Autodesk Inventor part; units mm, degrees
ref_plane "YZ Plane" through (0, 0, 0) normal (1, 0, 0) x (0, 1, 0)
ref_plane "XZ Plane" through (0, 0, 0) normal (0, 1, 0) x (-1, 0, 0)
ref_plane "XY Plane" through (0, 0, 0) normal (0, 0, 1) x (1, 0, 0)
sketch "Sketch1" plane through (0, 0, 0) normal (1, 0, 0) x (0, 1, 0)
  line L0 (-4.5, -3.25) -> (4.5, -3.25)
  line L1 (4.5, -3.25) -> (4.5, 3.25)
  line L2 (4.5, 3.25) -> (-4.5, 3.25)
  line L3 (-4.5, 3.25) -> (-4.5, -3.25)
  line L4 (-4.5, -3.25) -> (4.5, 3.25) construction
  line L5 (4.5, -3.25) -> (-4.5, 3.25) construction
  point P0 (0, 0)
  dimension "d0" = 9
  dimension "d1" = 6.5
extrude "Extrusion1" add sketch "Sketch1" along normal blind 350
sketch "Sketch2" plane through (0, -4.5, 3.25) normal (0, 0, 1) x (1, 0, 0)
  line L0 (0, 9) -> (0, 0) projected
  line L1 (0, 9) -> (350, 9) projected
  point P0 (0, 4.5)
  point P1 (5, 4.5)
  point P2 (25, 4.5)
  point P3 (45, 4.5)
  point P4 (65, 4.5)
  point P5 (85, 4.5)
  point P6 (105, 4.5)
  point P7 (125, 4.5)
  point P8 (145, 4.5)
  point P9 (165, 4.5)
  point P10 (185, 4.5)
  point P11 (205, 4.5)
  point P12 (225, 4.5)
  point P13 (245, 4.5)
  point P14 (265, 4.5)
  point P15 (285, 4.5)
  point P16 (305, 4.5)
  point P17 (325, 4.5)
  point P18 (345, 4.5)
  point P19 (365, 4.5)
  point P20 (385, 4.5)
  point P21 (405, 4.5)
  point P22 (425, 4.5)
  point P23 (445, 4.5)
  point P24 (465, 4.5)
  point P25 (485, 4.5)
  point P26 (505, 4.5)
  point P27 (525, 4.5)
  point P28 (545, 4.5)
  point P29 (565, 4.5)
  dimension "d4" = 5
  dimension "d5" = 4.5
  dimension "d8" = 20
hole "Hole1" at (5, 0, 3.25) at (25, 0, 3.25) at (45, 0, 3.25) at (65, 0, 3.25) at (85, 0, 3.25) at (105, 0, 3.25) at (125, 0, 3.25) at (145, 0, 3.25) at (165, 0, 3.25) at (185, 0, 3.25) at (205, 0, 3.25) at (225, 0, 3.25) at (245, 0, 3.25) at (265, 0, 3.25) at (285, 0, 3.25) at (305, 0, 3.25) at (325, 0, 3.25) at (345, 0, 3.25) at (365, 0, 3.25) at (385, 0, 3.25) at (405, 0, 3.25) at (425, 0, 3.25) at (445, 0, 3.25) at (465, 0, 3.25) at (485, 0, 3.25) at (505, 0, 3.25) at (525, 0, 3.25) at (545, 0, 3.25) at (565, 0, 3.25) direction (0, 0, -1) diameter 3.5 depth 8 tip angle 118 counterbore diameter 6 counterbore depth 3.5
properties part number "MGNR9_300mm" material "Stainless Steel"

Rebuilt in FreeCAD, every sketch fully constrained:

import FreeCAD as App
import Part
import Sketcher

doc = App.newDocument("Part")
body = doc.addObject("PartDesign::Body", "Body")

sketch1 = doc.addObject("Sketcher::SketchObject", "Sketch")
body.addObject(sketch1)
sketch1.AttachmentSupport = (doc.YZ_Plane, [""])
sketch1.MapMode = "FlatFace"
sketch1.addGeometry([
    Part.LineSegment(App.Vector(-4.5, 3.25, 0), App.Vector(-4.5, -3.25, 0)),
    Part.LineSegment(App.Vector(-4.5, -3.25, 0), App.Vector(4.5, -3.25, 0)),
    Part.LineSegment(App.Vector(4.5, -3.25, 0), App.Vector(4.5, 3.25, 0)),
    Part.LineSegment(App.Vector(4.5, 3.25, 0), App.Vector(-4.5, 3.25, 0)),
], False)
sketch1.addConstraint([
    Sketcher.Constraint("Coincident", 0, 2, 1, 1),
    Sketcher.Constraint("Coincident", 1, 2, 2, 1),
    Sketcher.Constraint("Coincident", 2, 2, 3, 1),
    Sketcher.Constraint("Coincident", 3, 2, 0, 1),
    Sketcher.Constraint("Vertical", 0),
    Sketcher.Constraint("Horizontal", 1),
    Sketcher.Constraint("Vertical", 2),
    Sketcher.Constraint("Horizontal", 3),
    Sketcher.Constraint("Symmetric", 0, 2, 2, 2, -1, 1),
    Sketcher.Constraint("DistanceX", 1, 1, 1, 2, 9.0),
    Sketcher.Constraint("DistanceY", 0, 2, 0, 1, 6.5),
])
pad1 = doc.addObject("PartDesign::Pad", "Pad")
body.addObject(pad1)
pad1.Profile = sketch1
pad1.Length = 350

sketch2 = doc.addObject("Sketcher::SketchObject", "Sketch001")
body.addObject(sketch2)
sketch2.AttachmentSupport = (doc.XY_Plane, [""])
sketch2.MapMode = "FlatFace"
sketch2.AttachmentOffset = App.Placement(App.Vector(0, 0, 3.25), App.Rotation())
sketch2.addGeometry([
    Part.Circle(App.Vector(5, 0, 0), App.Vector(0, 0, 1), 1.75),
    Part.Circle(App.Vector(25, 0, 0), App.Vector(0, 0, 1), 1.75),
    Part.Circle(App.Vector(45, 0, 0), App.Vector(0, 0, 1), 1.75),
    Part.Circle(App.Vector(65, 0, 0), App.Vector(0, 0, 1), 1.75),
    Part.Circle(App.Vector(85, 0, 0), App.Vector(0, 0, 1), 1.75),
    Part.Circle(App.Vector(105, 0, 0), App.Vector(0, 0, 1), 1.75),
    Part.Circle(App.Vector(125, 0, 0), App.Vector(0, 0, 1), 1.75),
    Part.Circle(App.Vector(145, 0, 0), App.Vector(0, 0, 1), 1.75),
    Part.Circle(App.Vector(165, 0, 0), App.Vector(0, 0, 1), 1.75),
    Part.Circle(App.Vector(185, 0, 0), App.Vector(0, 0, 1), 1.75),
    Part.Circle(App.Vector(205, 0, 0), App.Vector(0, 0, 1), 1.75),
    Part.Circle(App.Vector(225, 0, 0), App.Vector(0, 0, 1), 1.75),
    Part.Circle(App.Vector(245, 0, 0), App.Vector(0, 0, 1), 1.75),
    Part.Circle(App.Vector(265, 0, 0), App.Vector(0, 0, 1), 1.75),
    Part.Circle(App.Vector(285, 0, 0), App.Vector(0, 0, 1), 1.75),
    Part.Circle(App.Vector(305, 0, 0), App.Vector(0, 0, 1), 1.75),
    Part.Circle(App.Vector(325, 0, 0), App.Vector(0, 0, 1), 1.75),
    Part.Circle(App.Vector(345, 0, 0), App.Vector(0, 0, 1), 1.75),
    Part.Circle(App.Vector(365, 0, 0), App.Vector(0, 0, 1), 1.75),
    Part.Circle(App.Vector(385, 0, 0), App.Vector(0, 0, 1), 1.75),
    Part.Circle(App.Vector(405, 0, 0), App.Vector(0, 0, 1), 1.75),
    Part.Circle(App.Vector(425, 0, 0), App.Vector(0, 0, 1), 1.75),
    Part.Circle(App.Vector(445, 0, 0), App.Vector(0, 0, 1), 1.75),
    Part.Circle(App.Vector(465, 0, 0), App.Vector(0, 0, 1), 1.75),
    Part.Circle(App.Vector(485, 0, 0), App.Vector(0, 0, 1), 1.75),
    Part.Circle(App.Vector(505, 0, 0), App.Vector(0, 0, 1), 1.75),
    Part.Circle(App.Vector(525, 0, 0), App.Vector(0, 0, 1), 1.75),
    Part.Circle(App.Vector(545, 0, 0), App.Vector(0, 0, 1), 1.75),
    Part.Circle(App.Vector(565, 0, 0), App.Vector(0, 0, 1), 1.75),
], False)
sketch2.addConstraint([
    Sketcher.Constraint("Equal", 0, 1),
    Sketcher.Constraint("Equal", 1, 2),
    Sketcher.Constraint("Equal", 2, 3),
    Sketcher.Constraint("Equal", 3, 4),
    Sketcher.Constraint("Equal", 4, 5),
    Sketcher.Constraint("Equal", 5, 6),
    Sketcher.Constraint("Equal", 6, 7),
    Sketcher.Constraint("Equal", 7, 8),
    Sketcher.Constraint("Equal", 8, 9),
    Sketcher.Constraint("Equal", 9, 10),
    Sketcher.Constraint("Equal", 10, 11),
    Sketcher.Constraint("Equal", 11, 12),
    Sketcher.Constraint("Equal", 12, 13),
    Sketcher.Constraint("Equal", 13, 14),
    Sketcher.Constraint("Equal", 14, 15),
    Sketcher.Constraint("Equal", 15, 16),
    Sketcher.Constraint("Equal", 16, 17),
    Sketcher.Constraint("Equal", 17, 18),
    Sketcher.Constraint("Equal", 18, 19),
    Sketcher.Constraint("Equal", 19, 20),
    Sketcher.Constraint("Equal", 20, 21),
    Sketcher.Constraint("Equal", 21, 22),
    Sketcher.Constraint("Equal", 22, 23),
    Sketcher.Constraint("Equal", 23, 24),
    Sketcher.Constraint("Equal", 24, 25),
    Sketcher.Constraint("Equal", 25, 26),
    Sketcher.Constraint("Equal", 26, 27),
    Sketcher.Constraint("Equal", 27, 28),
    Sketcher.Constraint("PointOnObject", 0, 3, -1),
    Sketcher.Constraint("PointOnObject", 1, 3, -1),
    Sketcher.Constraint("PointOnObject", 2, 3, -1),
    Sketcher.Constraint("PointOnObject", 3, 3, -1),
    Sketcher.Constraint("PointOnObject", 4, 3, -1),
    Sketcher.Constraint("PointOnObject", 5, 3, -1),
    Sketcher.Constraint("PointOnObject", 6, 3, -1),
    Sketcher.Constraint("PointOnObject", 7, 3, -1),
    Sketcher.Constraint("PointOnObject", 8, 3, -1),
    Sketcher.Constraint("PointOnObject", 9, 3, -1),
    Sketcher.Constraint("PointOnObject", 10, 3, -1),
    Sketcher.Constraint("PointOnObject", 11, 3, -1),
    Sketcher.Constraint("PointOnObject", 12, 3, -1),
    Sketcher.Constraint("PointOnObject", 13, 3, -1),
    Sketcher.Constraint("PointOnObject", 14, 3, -1),
    Sketcher.Constraint("PointOnObject", 15, 3, -1),
    Sketcher.Constraint("PointOnObject", 16, 3, -1),
    Sketcher.Constraint("PointOnObject", 17, 3, -1),
    Sketcher.Constraint("PointOnObject", 18, 3, -1),
    Sketcher.Constraint("PointOnObject", 19, 3, -1),
    Sketcher.Constraint("PointOnObject", 20, 3, -1),
    Sketcher.Constraint("PointOnObject", 21, 3, -1),
    Sketcher.Constraint("PointOnObject", 22, 3, -1),
    Sketcher.Constraint("PointOnObject", 23, 3, -1),
    Sketcher.Constraint("PointOnObject", 24, 3, -1),
    Sketcher.Constraint("PointOnObject", 25, 3, -1),
    Sketcher.Constraint("PointOnObject", 26, 3, -1),
    Sketcher.Constraint("PointOnObject", 27, 3, -1),
    Sketcher.Constraint("PointOnObject", 28, 3, -1),
    Sketcher.Constraint("Diameter", 0, 3.5),
    Sketcher.Constraint("DistanceX", -1, 1, 0, 3, 5.0),
    Sketcher.Constraint("DistanceX", -1, 1, 1, 3, 25.0),
    Sketcher.Constraint("DistanceX", -1, 1, 2, 3, 45.0),
    Sketcher.Constraint("DistanceX", -1, 1, 3, 3, 65.0),
    Sketcher.Constraint("DistanceX", -1, 1, 4, 3, 85.0),
    Sketcher.Constraint("DistanceX", -1, 1, 5, 3, 105.0),
    Sketcher.Constraint("DistanceX", -1, 1, 6, 3, 125.0),
    Sketcher.Constraint("DistanceX", -1, 1, 7, 3, 145.0),
    Sketcher.Constraint("DistanceX", -1, 1, 8, 3, 165.0),
    Sketcher.Constraint("DistanceX", -1, 1, 9, 3, 185.0),
    Sketcher.Constraint("DistanceX", -1, 1, 10, 3, 205.0),
    Sketcher.Constraint("DistanceX", -1, 1, 11, 3, 225.0),
    Sketcher.Constraint("DistanceX", -1, 1, 12, 3, 245.0),
    Sketcher.Constraint("DistanceX", -1, 1, 13, 3, 265.0),
    Sketcher.Constraint("DistanceX", -1, 1, 14, 3, 285.0),
    Sketcher.Constraint("DistanceX", -1, 1, 15, 3, 305.0),
    Sketcher.Constraint("DistanceX", -1, 1, 16, 3, 325.0),
    Sketcher.Constraint("DistanceX", -1, 1, 17, 3, 345.0),
    Sketcher.Constraint("DistanceX", -1, 1, 18, 3, 365.0),
    Sketcher.Constraint("DistanceX", -1, 1, 19, 3, 385.0),
    Sketcher.Constraint("DistanceX", -1, 1, 20, 3, 405.0),
    Sketcher.Constraint("DistanceX", -1, 1, 21, 3, 425.0),
    Sketcher.Constraint("DistanceX", -1, 1, 22, 3, 445.0),
    Sketcher.Constraint("DistanceX", -1, 1, 23, 3, 465.0),
    Sketcher.Constraint("DistanceX", -1, 1, 24, 3, 485.0),
    Sketcher.Constraint("DistanceX", -1, 1, 25, 3, 505.0),
    Sketcher.Constraint("DistanceX", -1, 1, 26, 3, 525.0),
    Sketcher.Constraint("DistanceX", -1, 1, 27, 3, 545.0),
    Sketcher.Constraint("DistanceX", -1, 1, 28, 3, 565.0),
])
doc.recompute()
hole = doc.addObject("PartDesign::Hole", "Hole")
body.addObject(hole)
hole.Profile = sketch2
hole.ThreadType = "None"
hole.Diameter = 3.5
hole.DepthType = "Dimension"
hole.Depth = 8
hole.DrillPoint = "Angled"
hole.DrillPointAngle = 118
hole.HoleCutType = "Counterbore"
hole.HoleCutDiameter = 6
hole.HoleCutDepth = 3.5

doc.recompute()
